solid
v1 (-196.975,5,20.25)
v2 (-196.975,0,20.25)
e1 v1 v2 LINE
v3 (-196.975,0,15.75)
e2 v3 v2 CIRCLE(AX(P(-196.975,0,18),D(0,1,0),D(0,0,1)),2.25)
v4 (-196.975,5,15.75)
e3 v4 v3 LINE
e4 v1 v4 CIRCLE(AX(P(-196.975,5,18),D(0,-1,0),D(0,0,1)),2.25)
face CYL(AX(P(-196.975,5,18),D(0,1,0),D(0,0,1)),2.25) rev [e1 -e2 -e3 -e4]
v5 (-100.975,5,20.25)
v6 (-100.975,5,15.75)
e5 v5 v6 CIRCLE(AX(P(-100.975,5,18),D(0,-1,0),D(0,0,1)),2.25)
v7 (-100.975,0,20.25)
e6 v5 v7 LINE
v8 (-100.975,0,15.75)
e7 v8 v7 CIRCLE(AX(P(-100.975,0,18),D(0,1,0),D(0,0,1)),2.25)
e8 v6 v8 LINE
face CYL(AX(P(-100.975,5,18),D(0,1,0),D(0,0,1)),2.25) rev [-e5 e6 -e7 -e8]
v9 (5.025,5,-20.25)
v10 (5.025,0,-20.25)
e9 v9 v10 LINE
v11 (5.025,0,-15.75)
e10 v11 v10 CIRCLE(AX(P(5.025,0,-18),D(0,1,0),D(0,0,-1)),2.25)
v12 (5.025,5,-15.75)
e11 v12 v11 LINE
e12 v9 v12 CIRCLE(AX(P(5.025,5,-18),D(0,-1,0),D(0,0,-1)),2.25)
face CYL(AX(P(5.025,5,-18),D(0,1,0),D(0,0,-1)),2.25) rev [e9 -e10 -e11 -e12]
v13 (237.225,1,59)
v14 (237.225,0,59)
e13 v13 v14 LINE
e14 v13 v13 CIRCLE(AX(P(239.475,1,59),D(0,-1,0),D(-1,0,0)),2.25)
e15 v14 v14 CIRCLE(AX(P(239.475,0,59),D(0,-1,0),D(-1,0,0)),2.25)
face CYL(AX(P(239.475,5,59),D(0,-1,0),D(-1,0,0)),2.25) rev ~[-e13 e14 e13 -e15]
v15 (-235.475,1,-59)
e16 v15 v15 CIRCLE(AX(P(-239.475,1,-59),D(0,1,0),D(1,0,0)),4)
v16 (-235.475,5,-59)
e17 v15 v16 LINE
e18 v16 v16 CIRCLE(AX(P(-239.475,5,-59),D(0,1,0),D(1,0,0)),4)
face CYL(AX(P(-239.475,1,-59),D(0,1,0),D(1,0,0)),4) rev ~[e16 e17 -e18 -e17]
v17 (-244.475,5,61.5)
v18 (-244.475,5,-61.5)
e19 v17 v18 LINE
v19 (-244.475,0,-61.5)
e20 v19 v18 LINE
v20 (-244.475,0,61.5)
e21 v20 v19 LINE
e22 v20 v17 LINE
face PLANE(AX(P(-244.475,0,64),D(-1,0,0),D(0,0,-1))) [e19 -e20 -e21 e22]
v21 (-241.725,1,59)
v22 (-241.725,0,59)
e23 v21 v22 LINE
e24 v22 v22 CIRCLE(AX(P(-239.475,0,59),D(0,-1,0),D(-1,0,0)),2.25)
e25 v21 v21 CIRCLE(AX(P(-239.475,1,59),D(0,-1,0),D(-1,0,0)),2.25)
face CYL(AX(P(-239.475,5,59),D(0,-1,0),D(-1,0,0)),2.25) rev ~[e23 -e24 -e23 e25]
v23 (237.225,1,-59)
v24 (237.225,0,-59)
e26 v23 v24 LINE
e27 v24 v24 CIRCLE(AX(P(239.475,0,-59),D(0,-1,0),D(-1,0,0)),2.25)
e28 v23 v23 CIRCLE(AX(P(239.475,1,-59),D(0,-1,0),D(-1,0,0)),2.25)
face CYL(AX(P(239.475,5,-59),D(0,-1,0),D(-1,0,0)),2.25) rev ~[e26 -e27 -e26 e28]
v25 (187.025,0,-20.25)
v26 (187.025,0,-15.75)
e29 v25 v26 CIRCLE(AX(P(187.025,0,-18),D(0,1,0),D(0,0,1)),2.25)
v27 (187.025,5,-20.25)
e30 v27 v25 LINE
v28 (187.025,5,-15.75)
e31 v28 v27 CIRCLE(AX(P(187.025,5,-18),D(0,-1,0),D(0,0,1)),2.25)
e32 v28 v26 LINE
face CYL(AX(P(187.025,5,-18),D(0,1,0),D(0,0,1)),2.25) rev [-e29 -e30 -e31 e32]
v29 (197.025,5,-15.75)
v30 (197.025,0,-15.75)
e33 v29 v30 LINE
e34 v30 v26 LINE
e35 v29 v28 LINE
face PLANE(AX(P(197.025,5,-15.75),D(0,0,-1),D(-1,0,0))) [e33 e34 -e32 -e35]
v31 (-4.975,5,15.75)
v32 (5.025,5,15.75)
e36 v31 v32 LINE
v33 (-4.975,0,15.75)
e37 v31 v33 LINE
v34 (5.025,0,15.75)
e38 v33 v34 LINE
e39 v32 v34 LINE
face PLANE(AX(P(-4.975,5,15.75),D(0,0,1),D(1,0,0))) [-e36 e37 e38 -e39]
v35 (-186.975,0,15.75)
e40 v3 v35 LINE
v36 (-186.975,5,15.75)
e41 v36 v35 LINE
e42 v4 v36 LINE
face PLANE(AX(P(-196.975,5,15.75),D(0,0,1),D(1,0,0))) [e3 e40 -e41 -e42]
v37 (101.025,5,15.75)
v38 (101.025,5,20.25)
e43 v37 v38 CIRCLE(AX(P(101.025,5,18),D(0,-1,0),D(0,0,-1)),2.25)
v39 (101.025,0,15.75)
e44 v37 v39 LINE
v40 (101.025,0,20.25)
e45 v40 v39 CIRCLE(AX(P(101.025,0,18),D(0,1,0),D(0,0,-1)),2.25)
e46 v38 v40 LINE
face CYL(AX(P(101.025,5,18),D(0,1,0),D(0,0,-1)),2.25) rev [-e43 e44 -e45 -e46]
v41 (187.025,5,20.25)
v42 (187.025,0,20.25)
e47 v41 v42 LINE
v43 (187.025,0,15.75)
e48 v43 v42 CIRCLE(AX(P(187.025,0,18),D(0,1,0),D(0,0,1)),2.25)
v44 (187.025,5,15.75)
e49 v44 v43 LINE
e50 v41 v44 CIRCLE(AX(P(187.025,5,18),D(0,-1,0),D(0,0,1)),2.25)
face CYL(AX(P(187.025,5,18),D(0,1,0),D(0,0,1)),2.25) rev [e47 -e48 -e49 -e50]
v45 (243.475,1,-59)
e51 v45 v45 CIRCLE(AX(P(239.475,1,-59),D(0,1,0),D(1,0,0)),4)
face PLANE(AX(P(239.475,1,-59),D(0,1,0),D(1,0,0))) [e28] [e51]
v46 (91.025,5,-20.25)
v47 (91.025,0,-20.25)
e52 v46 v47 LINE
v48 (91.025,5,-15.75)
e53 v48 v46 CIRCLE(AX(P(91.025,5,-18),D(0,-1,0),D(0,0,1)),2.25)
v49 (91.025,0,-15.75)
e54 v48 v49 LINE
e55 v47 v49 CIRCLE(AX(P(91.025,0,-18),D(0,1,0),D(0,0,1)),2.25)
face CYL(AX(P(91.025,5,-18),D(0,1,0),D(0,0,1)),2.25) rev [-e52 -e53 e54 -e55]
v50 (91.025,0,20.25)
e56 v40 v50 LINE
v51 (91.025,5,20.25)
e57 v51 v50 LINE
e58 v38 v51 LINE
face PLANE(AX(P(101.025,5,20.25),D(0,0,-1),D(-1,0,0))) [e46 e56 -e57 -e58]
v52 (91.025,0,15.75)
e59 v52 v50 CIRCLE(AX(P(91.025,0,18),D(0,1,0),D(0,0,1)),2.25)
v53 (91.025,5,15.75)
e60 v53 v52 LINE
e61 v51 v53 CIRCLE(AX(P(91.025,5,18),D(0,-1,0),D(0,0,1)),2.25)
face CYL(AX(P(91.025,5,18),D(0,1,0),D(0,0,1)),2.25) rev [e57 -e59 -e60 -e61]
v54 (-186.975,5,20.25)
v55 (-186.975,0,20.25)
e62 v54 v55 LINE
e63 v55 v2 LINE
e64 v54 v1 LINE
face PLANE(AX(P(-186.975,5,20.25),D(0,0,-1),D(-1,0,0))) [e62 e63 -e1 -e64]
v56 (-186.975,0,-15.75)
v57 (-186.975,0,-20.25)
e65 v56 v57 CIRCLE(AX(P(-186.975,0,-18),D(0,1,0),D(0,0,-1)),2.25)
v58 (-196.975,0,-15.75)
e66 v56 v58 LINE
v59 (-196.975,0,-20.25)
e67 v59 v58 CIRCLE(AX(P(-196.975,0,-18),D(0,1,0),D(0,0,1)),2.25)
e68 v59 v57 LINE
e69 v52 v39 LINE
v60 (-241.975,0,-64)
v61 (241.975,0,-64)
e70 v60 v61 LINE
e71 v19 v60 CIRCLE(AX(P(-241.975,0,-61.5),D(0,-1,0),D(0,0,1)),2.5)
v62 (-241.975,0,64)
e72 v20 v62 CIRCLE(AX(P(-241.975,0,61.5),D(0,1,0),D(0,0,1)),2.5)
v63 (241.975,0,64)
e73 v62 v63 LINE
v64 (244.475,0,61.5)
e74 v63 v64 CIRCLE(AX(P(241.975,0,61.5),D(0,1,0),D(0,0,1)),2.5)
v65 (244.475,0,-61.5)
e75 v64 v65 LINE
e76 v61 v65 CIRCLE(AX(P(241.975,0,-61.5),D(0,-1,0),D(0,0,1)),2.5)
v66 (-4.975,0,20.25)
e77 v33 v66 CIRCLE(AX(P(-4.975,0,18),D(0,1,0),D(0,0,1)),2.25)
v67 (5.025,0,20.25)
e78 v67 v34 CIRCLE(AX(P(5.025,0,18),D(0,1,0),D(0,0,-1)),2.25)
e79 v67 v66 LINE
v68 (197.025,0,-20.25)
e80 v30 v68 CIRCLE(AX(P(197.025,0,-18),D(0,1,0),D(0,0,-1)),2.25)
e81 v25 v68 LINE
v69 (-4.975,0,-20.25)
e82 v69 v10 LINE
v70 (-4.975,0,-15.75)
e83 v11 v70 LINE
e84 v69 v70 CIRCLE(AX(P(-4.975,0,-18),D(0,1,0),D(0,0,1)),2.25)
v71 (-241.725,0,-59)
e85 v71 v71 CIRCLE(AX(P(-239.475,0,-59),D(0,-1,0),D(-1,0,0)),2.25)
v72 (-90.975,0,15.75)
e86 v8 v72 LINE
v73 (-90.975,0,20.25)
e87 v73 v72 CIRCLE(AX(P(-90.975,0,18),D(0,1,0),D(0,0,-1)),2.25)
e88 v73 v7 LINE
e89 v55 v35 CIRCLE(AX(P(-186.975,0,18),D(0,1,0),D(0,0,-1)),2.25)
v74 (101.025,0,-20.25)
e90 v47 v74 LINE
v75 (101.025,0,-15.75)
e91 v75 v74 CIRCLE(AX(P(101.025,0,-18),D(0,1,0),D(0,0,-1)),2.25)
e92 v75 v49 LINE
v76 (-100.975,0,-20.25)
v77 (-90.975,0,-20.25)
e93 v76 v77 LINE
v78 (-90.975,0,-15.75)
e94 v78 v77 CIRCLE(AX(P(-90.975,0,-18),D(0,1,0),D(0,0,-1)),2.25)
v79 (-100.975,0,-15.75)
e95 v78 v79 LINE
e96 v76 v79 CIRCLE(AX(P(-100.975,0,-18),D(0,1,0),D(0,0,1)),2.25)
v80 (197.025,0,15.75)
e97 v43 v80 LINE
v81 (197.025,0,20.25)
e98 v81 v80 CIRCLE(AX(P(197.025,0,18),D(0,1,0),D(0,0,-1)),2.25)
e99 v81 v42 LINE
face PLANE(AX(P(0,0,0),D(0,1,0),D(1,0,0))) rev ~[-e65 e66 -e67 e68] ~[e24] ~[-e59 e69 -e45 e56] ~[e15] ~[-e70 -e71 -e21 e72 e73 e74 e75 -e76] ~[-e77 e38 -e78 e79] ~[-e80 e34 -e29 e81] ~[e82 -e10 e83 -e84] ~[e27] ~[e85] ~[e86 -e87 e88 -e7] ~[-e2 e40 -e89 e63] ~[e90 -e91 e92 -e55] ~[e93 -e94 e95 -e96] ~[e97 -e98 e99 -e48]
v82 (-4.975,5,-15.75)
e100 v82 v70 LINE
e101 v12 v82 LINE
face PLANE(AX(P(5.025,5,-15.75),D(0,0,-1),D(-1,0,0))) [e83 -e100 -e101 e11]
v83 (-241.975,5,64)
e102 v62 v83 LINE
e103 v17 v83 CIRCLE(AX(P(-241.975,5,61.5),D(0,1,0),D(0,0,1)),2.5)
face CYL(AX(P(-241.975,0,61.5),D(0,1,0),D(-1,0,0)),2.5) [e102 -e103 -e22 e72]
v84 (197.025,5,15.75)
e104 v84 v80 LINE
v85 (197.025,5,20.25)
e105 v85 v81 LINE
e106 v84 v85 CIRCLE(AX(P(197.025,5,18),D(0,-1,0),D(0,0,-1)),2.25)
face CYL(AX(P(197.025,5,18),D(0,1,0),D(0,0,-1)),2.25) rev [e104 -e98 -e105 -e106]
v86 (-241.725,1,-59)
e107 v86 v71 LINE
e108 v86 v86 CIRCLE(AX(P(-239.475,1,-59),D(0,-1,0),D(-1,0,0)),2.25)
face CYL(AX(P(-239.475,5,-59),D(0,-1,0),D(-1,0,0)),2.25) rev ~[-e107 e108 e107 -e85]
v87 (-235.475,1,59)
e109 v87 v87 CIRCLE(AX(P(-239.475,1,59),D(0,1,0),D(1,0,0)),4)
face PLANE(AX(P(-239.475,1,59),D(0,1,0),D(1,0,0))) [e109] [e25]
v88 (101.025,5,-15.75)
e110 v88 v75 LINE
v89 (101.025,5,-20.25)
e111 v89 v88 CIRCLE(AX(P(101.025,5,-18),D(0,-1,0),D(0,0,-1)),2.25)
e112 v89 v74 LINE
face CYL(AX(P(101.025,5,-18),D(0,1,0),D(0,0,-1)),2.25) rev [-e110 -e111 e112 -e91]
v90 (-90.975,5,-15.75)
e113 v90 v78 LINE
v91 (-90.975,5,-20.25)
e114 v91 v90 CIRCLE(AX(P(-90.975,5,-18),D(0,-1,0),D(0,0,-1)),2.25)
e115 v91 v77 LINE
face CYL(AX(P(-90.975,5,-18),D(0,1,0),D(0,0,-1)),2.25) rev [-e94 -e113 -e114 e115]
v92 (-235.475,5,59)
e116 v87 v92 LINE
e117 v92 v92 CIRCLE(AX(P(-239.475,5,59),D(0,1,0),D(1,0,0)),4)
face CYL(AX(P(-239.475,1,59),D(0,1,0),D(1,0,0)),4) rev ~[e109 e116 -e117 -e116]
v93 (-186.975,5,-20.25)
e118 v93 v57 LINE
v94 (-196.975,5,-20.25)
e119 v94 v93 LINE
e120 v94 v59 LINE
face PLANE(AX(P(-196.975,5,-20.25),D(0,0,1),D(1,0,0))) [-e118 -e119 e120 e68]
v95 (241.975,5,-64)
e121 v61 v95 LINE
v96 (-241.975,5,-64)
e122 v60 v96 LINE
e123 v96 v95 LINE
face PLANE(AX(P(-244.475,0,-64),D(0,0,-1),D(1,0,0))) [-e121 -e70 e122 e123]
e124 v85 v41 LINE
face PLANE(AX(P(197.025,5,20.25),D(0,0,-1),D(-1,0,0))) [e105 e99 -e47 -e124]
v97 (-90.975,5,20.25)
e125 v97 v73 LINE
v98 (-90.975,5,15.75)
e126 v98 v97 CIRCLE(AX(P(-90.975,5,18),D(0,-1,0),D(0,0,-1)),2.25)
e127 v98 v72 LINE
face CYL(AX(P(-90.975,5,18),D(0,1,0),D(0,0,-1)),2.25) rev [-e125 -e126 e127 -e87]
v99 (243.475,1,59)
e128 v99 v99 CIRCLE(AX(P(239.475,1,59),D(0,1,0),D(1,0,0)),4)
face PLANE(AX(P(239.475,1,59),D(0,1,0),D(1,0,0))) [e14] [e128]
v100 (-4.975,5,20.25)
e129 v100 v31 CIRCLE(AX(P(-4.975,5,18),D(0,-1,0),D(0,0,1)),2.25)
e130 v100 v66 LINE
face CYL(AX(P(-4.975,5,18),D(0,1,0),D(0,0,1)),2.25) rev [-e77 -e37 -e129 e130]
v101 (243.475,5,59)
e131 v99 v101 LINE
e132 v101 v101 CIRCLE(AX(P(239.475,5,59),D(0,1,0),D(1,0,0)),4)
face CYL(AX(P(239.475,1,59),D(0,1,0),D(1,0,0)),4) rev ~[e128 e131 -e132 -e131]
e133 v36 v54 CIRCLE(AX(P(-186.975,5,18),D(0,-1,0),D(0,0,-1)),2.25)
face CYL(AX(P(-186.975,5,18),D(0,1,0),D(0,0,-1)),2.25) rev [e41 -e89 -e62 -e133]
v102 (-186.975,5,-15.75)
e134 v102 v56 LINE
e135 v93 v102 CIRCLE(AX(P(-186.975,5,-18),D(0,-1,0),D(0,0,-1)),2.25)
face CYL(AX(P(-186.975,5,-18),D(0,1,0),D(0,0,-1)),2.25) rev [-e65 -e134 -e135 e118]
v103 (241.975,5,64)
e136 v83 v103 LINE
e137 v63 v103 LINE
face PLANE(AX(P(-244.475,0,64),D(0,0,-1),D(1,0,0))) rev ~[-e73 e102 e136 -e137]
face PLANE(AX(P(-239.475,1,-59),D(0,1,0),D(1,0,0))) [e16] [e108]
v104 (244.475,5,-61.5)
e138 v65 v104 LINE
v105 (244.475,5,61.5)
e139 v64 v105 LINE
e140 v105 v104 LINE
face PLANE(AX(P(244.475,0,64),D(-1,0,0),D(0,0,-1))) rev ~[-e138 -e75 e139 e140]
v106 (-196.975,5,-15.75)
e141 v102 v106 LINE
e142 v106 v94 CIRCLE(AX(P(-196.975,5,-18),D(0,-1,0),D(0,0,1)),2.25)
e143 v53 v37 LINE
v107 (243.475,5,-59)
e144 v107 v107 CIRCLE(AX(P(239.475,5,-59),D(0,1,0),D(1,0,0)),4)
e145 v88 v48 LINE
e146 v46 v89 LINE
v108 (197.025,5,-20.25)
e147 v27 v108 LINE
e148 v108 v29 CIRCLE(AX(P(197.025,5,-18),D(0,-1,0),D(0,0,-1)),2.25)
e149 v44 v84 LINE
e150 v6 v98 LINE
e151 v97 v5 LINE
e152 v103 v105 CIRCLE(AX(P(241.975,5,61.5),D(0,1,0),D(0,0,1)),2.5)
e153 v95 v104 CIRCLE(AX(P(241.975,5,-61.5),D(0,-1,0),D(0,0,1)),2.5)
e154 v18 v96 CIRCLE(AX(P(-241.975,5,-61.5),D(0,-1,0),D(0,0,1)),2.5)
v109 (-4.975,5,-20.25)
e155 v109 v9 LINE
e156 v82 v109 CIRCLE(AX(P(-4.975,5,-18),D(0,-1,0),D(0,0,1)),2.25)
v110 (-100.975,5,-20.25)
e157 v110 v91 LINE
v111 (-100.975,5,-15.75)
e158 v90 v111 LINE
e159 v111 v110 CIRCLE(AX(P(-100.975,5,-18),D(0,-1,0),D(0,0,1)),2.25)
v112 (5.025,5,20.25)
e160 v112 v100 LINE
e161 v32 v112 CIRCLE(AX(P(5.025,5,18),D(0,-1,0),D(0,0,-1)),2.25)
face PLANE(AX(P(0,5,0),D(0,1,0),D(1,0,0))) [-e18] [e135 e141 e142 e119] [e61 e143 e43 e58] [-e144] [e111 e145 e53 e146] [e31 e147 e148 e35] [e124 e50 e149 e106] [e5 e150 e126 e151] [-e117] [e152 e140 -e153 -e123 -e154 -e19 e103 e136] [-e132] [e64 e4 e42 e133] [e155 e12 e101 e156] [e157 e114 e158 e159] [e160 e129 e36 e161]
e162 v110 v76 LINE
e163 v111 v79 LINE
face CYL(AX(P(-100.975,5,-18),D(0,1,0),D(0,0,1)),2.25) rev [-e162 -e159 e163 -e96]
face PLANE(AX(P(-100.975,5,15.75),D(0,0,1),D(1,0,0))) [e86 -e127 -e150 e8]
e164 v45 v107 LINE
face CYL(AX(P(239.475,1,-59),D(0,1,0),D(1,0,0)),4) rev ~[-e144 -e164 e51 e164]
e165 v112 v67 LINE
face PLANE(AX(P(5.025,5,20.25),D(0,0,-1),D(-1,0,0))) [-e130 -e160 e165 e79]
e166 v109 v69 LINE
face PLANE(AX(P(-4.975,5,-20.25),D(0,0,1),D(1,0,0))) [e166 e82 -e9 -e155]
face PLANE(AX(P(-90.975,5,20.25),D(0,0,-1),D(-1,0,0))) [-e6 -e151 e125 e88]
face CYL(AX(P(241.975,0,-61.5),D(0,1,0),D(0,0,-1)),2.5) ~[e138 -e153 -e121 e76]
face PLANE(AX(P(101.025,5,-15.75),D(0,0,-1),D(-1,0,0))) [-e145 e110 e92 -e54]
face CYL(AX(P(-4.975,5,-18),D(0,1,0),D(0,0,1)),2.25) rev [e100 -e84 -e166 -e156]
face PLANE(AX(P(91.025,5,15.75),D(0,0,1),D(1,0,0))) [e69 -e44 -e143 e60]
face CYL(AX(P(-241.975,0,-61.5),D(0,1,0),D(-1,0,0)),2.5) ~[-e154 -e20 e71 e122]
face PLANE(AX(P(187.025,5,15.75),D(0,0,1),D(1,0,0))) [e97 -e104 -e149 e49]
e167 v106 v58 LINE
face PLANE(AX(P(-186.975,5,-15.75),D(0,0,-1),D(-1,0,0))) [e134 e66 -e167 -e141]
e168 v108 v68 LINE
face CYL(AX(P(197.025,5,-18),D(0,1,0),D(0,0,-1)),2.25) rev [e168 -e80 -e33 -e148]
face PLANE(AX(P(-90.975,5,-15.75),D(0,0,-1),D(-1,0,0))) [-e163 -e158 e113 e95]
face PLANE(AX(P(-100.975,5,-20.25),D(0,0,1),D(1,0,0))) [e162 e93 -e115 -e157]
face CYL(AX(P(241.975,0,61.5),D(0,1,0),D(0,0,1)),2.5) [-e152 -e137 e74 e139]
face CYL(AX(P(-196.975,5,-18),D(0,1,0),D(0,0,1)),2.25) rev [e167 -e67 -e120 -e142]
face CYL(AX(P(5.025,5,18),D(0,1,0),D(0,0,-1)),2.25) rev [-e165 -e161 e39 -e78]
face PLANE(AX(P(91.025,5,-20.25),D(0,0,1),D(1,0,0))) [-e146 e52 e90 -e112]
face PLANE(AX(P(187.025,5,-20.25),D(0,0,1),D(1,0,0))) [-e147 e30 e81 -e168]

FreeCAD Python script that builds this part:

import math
import FreeCAD as App
import Part
import Sketcher
from FreeCAD import Vector
Q = App.Units.Quantity


def edges_at(feature, points):
    """Names of the edges that pass closest to the given points."""
    edges = feature.Shape.Edges
    near = lambda p: min(range(len(edges)), key=lambda i: edges[i].distToShape(Part.Vertex(*p))[0])
    return sorted({f"Edge{near(p) + 1}" for p in points})

doc = App.newDocument("Part")
body = doc.addObject("PartDesign::Body", "Body")

# Sketch on XZ plane
sketch1 = body.newObject("Sketcher::SketchObject", "Sketch")
sketch1.AttachmentSupport = (doc.getObject("XZ_Plane"), [""])
sketch1.MapMode = "FlatFace"
sketch1.addGeometry([
    Part.LineSegment(Vector(-244, -64, 0), Vector(-244, 64, 0)),
    Part.LineSegment(Vector(-244, 64, 0), Vector(244, 64, 0)),
    Part.LineSegment(Vector(244, 64, 0), Vector(244, -64, 0)),
    Part.LineSegment(Vector(244, -64, 0), Vector(-244, -64, 0)),
], False)
sketch1.addConstraint([
    Sketcher.Constraint("Coincident", 0, 2, 1, 1),
    Sketcher.Constraint("Coincident", 1, 2, 2, 1),
    Sketcher.Constraint("Coincident", 2, 2, 3, 1),
    Sketcher.Constraint("Coincident", 3, 2, 0, 1),
    Sketcher.Constraint("Vertical", 0),
    Sketcher.Constraint("Horizontal", 1),
    Sketcher.Constraint("Vertical", 2),
    Sketcher.Constraint("Horizontal", 3),
    Sketcher.Constraint("Symmetric", 0, 2, 2, 2, -1, 1),
    Sketcher.Constraint("DistanceY", 0, 1, 0, 2, Q("128 mm")),
    Sketcher.Constraint("DistanceX", 1, 1, 1, 2, Q("488.95 mm")),
])
pad1 = body.newObject("PartDesign::Pad", "Pad")
pad1.Profile = sketch1
pad1.Length = 5
pad1.Reversed = True

# Sketch on XZ plane
sketch2 = body.newObject("Sketcher::SketchObject", "Sketch001")
sketch2.AttachmentSupport = (doc.getObject("XZ_Plane"), [""])
sketch2.MapMode = "FlatFace"
sketch2.AttachmentOffset = App.Placement(Vector(0, 0, -5), App.Rotation())
sketch2.addGeometry([
    Part.Circle(Vector(-239.5, -59, 0), Vector(0, 0, 1), 2.2),
    Part.Circle(Vector(-239.5, 59, 0), Vector(0, 0, 1), 2.2),
    Part.Circle(Vector(239.5, 59, 0), Vector(0, 0, 1), 2.2),
    Part.Circle(Vector(239.5, -59, 0), Vector(0, 0, 1), 2.2),
], False)
sketch2.addConstraint([
    Sketcher.Constraint("Equal", 0, 1),
    Sketcher.Constraint("Equal", 1, 2),
    Sketcher.Constraint("Equal", 2, 3),
    Sketcher.Constraint("Symmetric", 0, 3, 2, 3, -1, 1),
    Sketcher.Constraint("Symmetric", 1, 3, 3, 3, -1, 1),
    Sketcher.Constraint("Symmetric", 1, 3, 2, 3, -2),
    Sketcher.Constraint("Diameter", 0, Q("4.5 mm")),
    Sketcher.Constraint("DistanceY", 0, 3, -1, 1, Q("59 mm")),
    Sketcher.Constraint("DistanceX", 1, 3, 2, 3, Q("478.95 mm")),
])
doc.recompute()
hole = body.newObject("PartDesign::Hole", "Hole")
hole.Profile = sketch2
hole.ThreadType = "None"
hole.Diameter = 4.5
hole.DepthType = "Dimension"
hole.Depth = 17.38
hole.DrillPoint = "Angled"
hole.DrillPointAngle = 118
hole.HoleCutType = "Counterbore"
hole.HoleCutDiameter = 8
hole.HoleCutDepth = 4
hole.Reversed = True
doc.recompute()

fillet = body.newObject("PartDesign::Fillet", "Fillet")
fillet.Base = (hole, edges_at(hole, [
    (244.475, 2.5, 64),
    (-244.475, 2.5, 64),
    (-244.475, 2.5, -64),
    (244.475, 2.5, -64),
]))
fillet.Radius = 2.5

# Sketch on XZ plane
sketch3 = body.newObject("Sketcher::SketchObject", "Sketch002")
sketch3.AttachmentSupport = (doc.getObject("XZ_Plane"), [""])
sketch3.MapMode = "FlatFace"
sketch3.AttachmentOffset = App.Placement(Vector(0, 0, -5), App.Rotation())
sketch3.addGeometry([
    Part.LineSegment(Vector(-187, -20.2, 0), Vector(-197, -20.2, 0)),  # 0
    Part.ArcOfCircle(Part.Circle(Vector(-197, -18, 0), Vector(0, 0, 1), 2.2), math.radians(90), math.radians(270)),  # 1
    Part.LineSegment(Vector(-197, -15.8, 0), Vector(-187, -15.8, 0)),  # 2
    Part.ArcOfCircle(Part.Circle(Vector(-187, -18, 0), Vector(0, 0, 1), 2.2), math.radians(-90), math.radians(90)),  # 3
    Part.LineSegment(Vector(-187, 15.8, 0), Vector(-197, 15.8, 0)),  # 4
    Part.ArcOfCircle(Part.Circle(Vector(-197, 18, 0), Vector(0, 0, 1), 2.2), math.radians(90), math.radians(270)),  # 5
    Part.LineSegment(Vector(-197, 20.2, 0), Vector(-187, 20.2, 0)),  # 6
    Part.ArcOfCircle(Part.Circle(Vector(-187, 18, 0), Vector(0, 0, 1), 2.2), math.radians(-90), math.radians(90)),  # 7
], False)
sketch3.addConstraint([
    Sketcher.Constraint("Tangent", 0, 2, 1, 2),
    Sketcher.Constraint("Tangent", 1, 1, 2, 1),
    Sketcher.Constraint("Tangent", 2, 2, 3, 2),
    Sketcher.Constraint("Tangent", 3, 1, 0, 1),
    Sketcher.Constraint("Tangent", 4, 2, 5, 2),
    Sketcher.Constraint("Tangent", 5, 1, 6, 1),
    Sketcher.Constraint("Tangent", 6, 2, 7, 2),
    Sketcher.Constraint("Tangent", 7, 1, 4, 1),
    Sketcher.Constraint("Horizontal", 0),
    Sketcher.Constraint("Horizontal", 2),
    Sketcher.Constraint("Horizontal", 4),
    Sketcher.Constraint("Horizontal", 6),
    Sketcher.Constraint("Equal", 3, 5),
    Sketcher.Constraint("Symmetric", 1, 3, 5, 3, -1),
    Sketcher.Constraint("Vertical", 3, 3, 7, 3),
    Sketcher.Constraint("DistanceX", 0, 2, 0, 1, Q("10 mm")),
    Sketcher.Constraint("Radius", 1, Q("2.25 mm")),
    Sketcher.Constraint("DistanceY", 1, 3, -1, 1, Q("18 mm")),
    Sketcher.Constraint("DistanceX", 1, 3, -1, 1, Q("196.975 mm")),
])
pocket1 = body.newObject("PartDesign::Pocket", "Pocket")
pocket1.Profile = sketch3
pocket1.Type = "ThroughAll"
pocket1.Reversed = True
doc.recompute()

linearpattern = body.newObject("PartDesign::LinearPattern", "LinearPattern")
linearpattern.Originals = [pocket1]
linearpattern.Direction = (doc.getObject("X_Axis"), [""])
linearpattern.Mode = "offset"
linearpattern.Offset = 96
linearpattern.Occurrences = 5
body.Tip = linearpattern

doc.recompute()
